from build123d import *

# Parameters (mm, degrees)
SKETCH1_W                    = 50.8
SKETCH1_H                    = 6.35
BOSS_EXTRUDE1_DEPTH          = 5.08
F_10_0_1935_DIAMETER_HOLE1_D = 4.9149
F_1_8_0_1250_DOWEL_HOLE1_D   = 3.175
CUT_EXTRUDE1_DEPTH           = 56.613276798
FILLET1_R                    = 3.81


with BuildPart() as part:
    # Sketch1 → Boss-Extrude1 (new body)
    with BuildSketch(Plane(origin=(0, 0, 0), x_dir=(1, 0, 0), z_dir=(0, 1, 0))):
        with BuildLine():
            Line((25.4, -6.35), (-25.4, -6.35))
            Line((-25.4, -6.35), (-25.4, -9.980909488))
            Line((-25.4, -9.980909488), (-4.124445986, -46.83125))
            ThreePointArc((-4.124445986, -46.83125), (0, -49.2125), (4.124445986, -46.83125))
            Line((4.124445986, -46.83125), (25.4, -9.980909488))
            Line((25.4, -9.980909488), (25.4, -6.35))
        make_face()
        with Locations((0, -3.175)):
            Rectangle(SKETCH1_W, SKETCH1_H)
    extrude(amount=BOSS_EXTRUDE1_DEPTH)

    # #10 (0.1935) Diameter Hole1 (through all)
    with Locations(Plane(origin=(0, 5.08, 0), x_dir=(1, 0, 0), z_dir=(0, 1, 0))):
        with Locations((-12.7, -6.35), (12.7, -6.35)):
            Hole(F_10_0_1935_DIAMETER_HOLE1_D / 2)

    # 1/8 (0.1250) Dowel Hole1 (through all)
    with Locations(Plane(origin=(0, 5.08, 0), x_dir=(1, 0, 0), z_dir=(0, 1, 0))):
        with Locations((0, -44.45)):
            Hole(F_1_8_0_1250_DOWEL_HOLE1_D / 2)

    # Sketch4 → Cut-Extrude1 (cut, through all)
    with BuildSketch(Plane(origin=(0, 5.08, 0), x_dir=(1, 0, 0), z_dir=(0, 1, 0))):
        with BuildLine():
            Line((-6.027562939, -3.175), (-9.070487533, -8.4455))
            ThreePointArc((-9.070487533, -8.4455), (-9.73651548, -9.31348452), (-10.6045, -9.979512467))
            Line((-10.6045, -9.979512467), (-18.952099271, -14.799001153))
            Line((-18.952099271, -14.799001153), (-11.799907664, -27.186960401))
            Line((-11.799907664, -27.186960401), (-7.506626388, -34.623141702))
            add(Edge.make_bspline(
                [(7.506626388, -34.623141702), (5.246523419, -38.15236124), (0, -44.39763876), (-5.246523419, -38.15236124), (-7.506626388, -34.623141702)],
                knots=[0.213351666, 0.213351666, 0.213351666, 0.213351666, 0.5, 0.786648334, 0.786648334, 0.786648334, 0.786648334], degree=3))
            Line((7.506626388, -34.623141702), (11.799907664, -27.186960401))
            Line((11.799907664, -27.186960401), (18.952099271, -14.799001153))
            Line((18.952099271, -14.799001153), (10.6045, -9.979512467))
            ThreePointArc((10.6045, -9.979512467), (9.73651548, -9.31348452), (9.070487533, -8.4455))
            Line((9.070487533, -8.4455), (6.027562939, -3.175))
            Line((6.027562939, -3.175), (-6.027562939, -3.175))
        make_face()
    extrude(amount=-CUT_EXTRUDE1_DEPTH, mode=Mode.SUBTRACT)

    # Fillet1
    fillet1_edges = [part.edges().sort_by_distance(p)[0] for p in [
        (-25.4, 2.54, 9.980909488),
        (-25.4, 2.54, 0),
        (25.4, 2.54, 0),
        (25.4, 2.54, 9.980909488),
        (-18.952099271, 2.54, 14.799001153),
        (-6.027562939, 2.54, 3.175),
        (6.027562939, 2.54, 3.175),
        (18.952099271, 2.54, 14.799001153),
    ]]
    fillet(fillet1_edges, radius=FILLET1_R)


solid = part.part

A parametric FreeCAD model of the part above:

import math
import FreeCAD as App
import Part
import Sketcher
from FreeCAD import Vector
Q = App.Units.Quantity


def edges_at(feature, points):
    """Names of the edges that pass closest to the given points."""
    edges = feature.Shape.Edges
    near = lambda p: min(range(len(edges)), key=lambda i: edges[i].distToShape(Part.Vertex(*p))[0])
    return sorted({f"Edge{near(p) + 1}" for p in points})

doc = App.newDocument("Part")
body = doc.addObject("PartDesign::Body", "Body")

# Sketch on XZ plane
sketch1 = body.newObject("Sketcher::SketchObject", "Sketch")
sketch1.AttachmentSupport = (doc.getObject("XZ_Plane"), [""])
sketch1.MapMode = "FlatFace"
sketch1.addGeometry([
    Part.LineSegment(Vector(-25.4, 10, 0), Vector(-4.1, 46.8, 0)),  # 0
    Part.ArcOfCircle(Part.Circle(Vector(0, 44.4, 0), Vector(0, 0, 1), 4.8), math.radians(30), math.radians(150)),  # 1
    Part.LineSegment(Vector(4.1, 46.8, 0), Vector(25.4, 10, 0)),  # 2
    Part.LineSegment(Vector(25.4, 10, 0), Vector(25.4, 0, 0)),  # 3
    Part.LineSegment(Vector(25.4, 0, 0), Vector(-25.4, 0, 0)),  # 4
    Part.LineSegment(Vector(-25.4, 0, 0), Vector(-25.4, 10, 0)),  # 5
], False)
sketch1.addConstraint([
    Sketcher.Constraint("Tangent", 0, 2, 1, 2),
    Sketcher.Constraint("Tangent", 1, 1, 2, 1),
    Sketcher.Constraint("Coincident", 2, 2, 3, 1),
    Sketcher.Constraint("Coincident", 3, 2, 4, 1),
    Sketcher.Constraint("Coincident", 4, 2, 5, 1),
    Sketcher.Constraint("Coincident", 5, 2, 0, 1),
    Sketcher.Constraint("Vertical", 3),
    Sketcher.Constraint("Horizontal", 4),
    Sketcher.Constraint("Vertical", 5),
    Sketcher.Constraint("Symmetric", 3, 2, 4, 2, -1, 1),
    Sketcher.Constraint("Symmetric", 0, 2, 1, 1, -2),
    Sketcher.Constraint("DistanceX", 4, 2, 4, 1, Q("2 in")),
    Sketcher.Constraint("Angle", 0, Q("60 deg")),
    Sketcher.Constraint("Radius", 1, Q("0.1875 in")),
    Sketcher.Constraint("DistanceY", -1, 1, 1, 3, Q("1.75 in")),
])
pad1 = body.newObject("PartDesign::Pad", "Pad")
pad1.Profile = sketch1
pad1.Length = Q("0.2 in")
pad1.Reversed = True

# Sketch on XZ plane
sketch2 = body.newObject("Sketcher::SketchObject", "Sketch001")
sketch2.AttachmentSupport = (doc.getObject("XZ_Plane"), [""])
sketch2.MapMode = "FlatFace"
sketch2.AttachmentOffset = App.Placement(Vector(0, 0, -0.2 * 25.4), App.Rotation())
sketch2.addGeometry([
    Part.Circle(Vector(-12.7, 6.3, 0), Vector(0, 0, 1), 2.5),
    Part.Circle(Vector(12.7, 6.3, 0), Vector(0, 0, 1), 2.5),
], False)
sketch2.addConstraint([
    Sketcher.Constraint("Equal", 0, 1),
    Sketcher.Constraint("Symmetric", 0, 3, 1, 3, -2),
    Sketcher.Constraint("DistanceX", 0, 3, 1, 3, Q("1 in")),
    Sketcher.Constraint("Diameter", 0, Q("0.1935 in")),
    Sketcher.Constraint("DistanceY", -1, 1, 0, 3, Q("0.25 in")),
])
doc.recompute()
hole = body.newObject("PartDesign::Hole", "Hole")
hole.Profile = sketch2
hole.ThreadType = "None"
hole.Diameter = Q("0.1935 in")
hole.DepthType = "ThroughAll"
hole.Reversed = True

# Sketch on XZ plane
sketch3 = body.newObject("Sketcher::SketchObject", "Sketch002")
sketch3.AttachmentSupport = (doc.getObject("XZ_Plane"), [""])
sketch3.MapMode = "FlatFace"
sketch3.AttachmentOffset = App.Placement(Vector(0, 0, -0.2 * 25.4), App.Rotation())
sketch3.addGeometry(Part.Circle(Vector(0, 44.5, 0), Vector(0, 0, 1), 1.6), False)
sketch3.addConstraint([
    Sketcher.Constraint("PointOnObject", 0, 3, -2),
    Sketcher.Constraint("Diameter", 0, Q("0.125 in")),
    Sketcher.Constraint("DistanceY", -1, 1, 0, 3, Q("1.75 in")),
])
doc.recompute()
hole2 = body.newObject("PartDesign::Hole", "Hole001")
hole2.Profile = sketch3
hole2.ThreadType = "None"
hole2.Diameter = Q("0.125 in")
hole2.DepthType = "ThroughAll"
hole2.Reversed = True

# Sketch on XZ plane
sketch4 = body.newObject("Sketcher::SketchObject", "Sketch003")
sketch4.AttachmentSupport = (doc.getObject("XZ_Plane"), [""])
sketch4.MapMode = "FlatFace"
sketch4.AttachmentOffset = App.Placement(Vector(0, 0, -0.2 * 25.4), App.Rotation())
sketch4.addGeometry([
    Part.LineSegment(Vector(-6.027563, 3.175, 0), Vector(-9.070488, 8.4455, 0)),  # 0
    Part.ArcOfCircle(Part.Circle(Vector(-12.7, 6.35, 0), Vector(0, 0, 1), 4.191), math.radians(30), math.radians(60)),  # 1
    Part.LineSegment(Vector(-10.6045, 9.979512, 0), Vector(-18.952099, 14.799001, 0)),  # 2
    Part.LineSegment(Vector(-18.952099, 14.799001, 0), Vector(-11.799908, 27.18696, 0)),  # 3
    Part.LineSegment(Vector(-11.799908, 27.18696, 0), Vector(-7.506626, 34.623142, 0)),  # 4
    Part.BSplineCurve([Vector(7.506626, 34.623142, 0), Vector(5.246523, 38.152361, 0), Vector(0, 44.397639, 0), Vector(-5.246523, 38.152361, 0), Vector(-7.506626, 34.623142, 0)], [4, 1, 4], [0.213351666, 0.5, 0.786648334], False, 3, [1, 1, 1, 1, 1], False),  # 5
    Part.LineSegment(Vector(7.506626, 34.623142, 0), Vector(11.799908, 27.18696, 0)),  # 6
    Part.LineSegment(Vector(11.799908, 27.18696, 0), Vector(18.952099, 14.799001, 0)),  # 7
    Part.LineSegment(Vector(18.952099, 14.799001, 0), Vector(10.6045, 9.979512, 0)),  # 8
    Part.ArcOfCircle(Part.Circle(Vector(12.7, 6.35, 0), Vector(0, 0, 1), 4.191), math.radians(120), math.radians(150)),  # 9
    Part.LineSegment(Vector(9.070488, 8.4455, 0), Vector(6.027563, 3.175, 0)),  # 10
    Part.LineSegment(Vector(6.027563, 3.175, 0), Vector(-6.027563, 3.175, 0)),  # 11
], False)
sketch4.addConstraint([
    Sketcher.Constraint("Block", 5),
    Sketcher.Constraint("Coincident", 0, 2, 1, 1),
    Sketcher.Constraint("Coincident", 1, 2, 2, 1),
    Sketcher.Constraint("Coincident", 2, 2, 3, 1),
    Sketcher.Constraint("Coincident", 3, 2, 4, 1),
    Sketcher.Constraint("Coincident", 4, 2, 5, 2),
    Sketcher.Constraint("Coincident", 5, 1, 6, 1),
    Sketcher.Constraint("Coincident", 6, 2, 7, 1),
    Sketcher.Constraint("Coincident", 7, 2, 8, 1),
    Sketcher.Constraint("Coincident", 8, 2, 9, 1),
    Sketcher.Constraint("Coincident", 9, 2, 10, 1),
    Sketcher.Constraint("Coincident", 10, 2, 11, 1),
    Sketcher.Constraint("Coincident", 11, 2, 0, 1),
    Sketcher.Constraint("Horizontal", 11),
    Sketcher.Constraint("Radius", 1, Q("0.165 in")),
    Sketcher.Constraint("Radius", 9, Q("0.165 in")),
    Sketcher.Constraint("DistanceX", 1, 3, 9, 3, Q("1 in")),
    Sketcher.Constraint("DistanceX", 1, 3, -1, 1, Q("0.5 in")),
    Sketcher.Constraint("DistanceY", -1, 1, 1, 3, Q("0.25 in")),
    Sketcher.Constraint("DistanceY", -1, 1, 9, 3, Q("0.25 in")),
    Sketcher.Constraint("DistanceY", -1, 1, 10, 2, Q("0.125 in")),
    Sketcher.Constraint("DistanceX", 1, 2, 8, 2, Q("0.835 in")),
    Sketcher.Constraint("DistanceY", -1, 1, 0, 2, Q("0.3325 in")),
    Sketcher.Constraint("DistanceX", 1, 2, -1, 1, Q("0.4175 in")),
    Sketcher.Constraint("DistanceY", -1, 1, 9, 2, Q("0.3325 in")),
    Sketcher.Constraint("DistanceX", 10, 2, 9, 2, Q("0.1198002 in")),
    Sketcher.Constraint("DistanceX", 0, 2, 11, 2, Q("0.1198002 in")),
    Sketcher.Constraint("DistanceX", 2, 2, -1, 1, Q("18.952099 mm")),
    Sketcher.Constraint("DistanceY", -1, 1, 2, 2, Q("14.799001 mm")),
    Sketcher.Constraint("DistanceX", -1, 1, 7, 2, Q("18.952099 mm")),
    Sketcher.Constraint("DistanceY", -1, 1, 7, 2, Q("14.799001 mm")),
    Sketcher.Constraint("DistanceY", -1, 1, 3, 2, Q("27.18696 mm")),
    Sketcher.Constraint("DistanceY", -1, 1, 6, 2, Q("27.18696 mm")),
    Sketcher.Constraint("DistanceX", 2, 2, 3, 2, Q("7.152192 mm")),
    Sketcher.Constraint("DistanceX", 6, 2, 7, 2, Q("7.152192 mm")),
])
pocket1 = body.newObject("PartDesign::Pocket", "Pocket")
pocket1.Profile = sketch4
pocket1.Type = "ThroughAll"
pocket1.Reversed = True
doc.recompute()

fillet = body.newObject("PartDesign::Fillet", "Fillet")
fillet.Base = (pocket1, edges_at(pocket1, [
    (-25.4, 2.54, 9.981),
    (-25.4, 2.54, 0),
    (25.4, 2.54, 0),
    (25.4, 2.54, 9.981),
    (-18.952, 2.54, 14.799),
    (-6.028, 2.54, 3.175),
    (6.028, 2.54, 3.175),
    (18.952, 2.54, 14.799),
]))
fillet.Radius = Q("0.15 in")

doc.recompute()
